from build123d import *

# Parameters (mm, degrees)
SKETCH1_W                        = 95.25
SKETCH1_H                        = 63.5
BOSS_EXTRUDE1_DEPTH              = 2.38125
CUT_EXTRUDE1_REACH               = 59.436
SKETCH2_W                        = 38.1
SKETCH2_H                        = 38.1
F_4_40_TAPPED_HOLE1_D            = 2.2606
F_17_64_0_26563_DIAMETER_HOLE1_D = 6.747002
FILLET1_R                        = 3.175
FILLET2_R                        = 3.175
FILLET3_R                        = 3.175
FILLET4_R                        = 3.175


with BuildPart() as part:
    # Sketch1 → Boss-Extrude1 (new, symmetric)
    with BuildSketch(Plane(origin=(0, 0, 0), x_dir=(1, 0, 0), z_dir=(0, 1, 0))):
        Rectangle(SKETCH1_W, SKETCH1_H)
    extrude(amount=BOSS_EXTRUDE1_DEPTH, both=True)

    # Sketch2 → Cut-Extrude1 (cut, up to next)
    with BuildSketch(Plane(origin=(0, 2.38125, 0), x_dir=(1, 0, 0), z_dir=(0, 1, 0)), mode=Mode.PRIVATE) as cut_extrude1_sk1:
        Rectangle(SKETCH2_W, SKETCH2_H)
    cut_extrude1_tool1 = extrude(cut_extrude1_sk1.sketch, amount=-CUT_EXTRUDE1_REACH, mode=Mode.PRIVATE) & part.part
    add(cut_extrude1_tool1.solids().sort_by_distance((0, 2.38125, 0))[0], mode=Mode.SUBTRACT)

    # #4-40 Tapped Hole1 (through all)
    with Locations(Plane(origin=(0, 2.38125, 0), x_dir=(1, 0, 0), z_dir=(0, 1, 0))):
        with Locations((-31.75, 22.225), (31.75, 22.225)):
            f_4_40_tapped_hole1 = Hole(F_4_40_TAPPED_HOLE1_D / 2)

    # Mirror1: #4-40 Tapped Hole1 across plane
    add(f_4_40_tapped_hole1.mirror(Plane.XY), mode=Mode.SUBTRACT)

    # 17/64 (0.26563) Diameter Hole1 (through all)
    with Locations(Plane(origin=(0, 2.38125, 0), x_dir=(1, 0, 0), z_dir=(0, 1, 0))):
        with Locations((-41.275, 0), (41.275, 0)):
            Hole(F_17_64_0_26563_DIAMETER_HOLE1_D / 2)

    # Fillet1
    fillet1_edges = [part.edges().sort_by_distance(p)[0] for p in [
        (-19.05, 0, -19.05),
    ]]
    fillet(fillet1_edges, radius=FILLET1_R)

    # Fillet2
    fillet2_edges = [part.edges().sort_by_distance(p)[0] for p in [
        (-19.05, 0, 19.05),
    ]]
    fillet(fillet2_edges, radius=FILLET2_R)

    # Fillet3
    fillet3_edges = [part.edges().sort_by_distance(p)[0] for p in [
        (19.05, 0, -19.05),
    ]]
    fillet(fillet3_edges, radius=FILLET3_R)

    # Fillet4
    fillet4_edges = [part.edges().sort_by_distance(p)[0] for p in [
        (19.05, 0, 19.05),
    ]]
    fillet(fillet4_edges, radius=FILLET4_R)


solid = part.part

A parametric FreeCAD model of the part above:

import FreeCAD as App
import Part
import Sketcher
Q = App.Units.Quantity


def edges_at(feature, points):
    """Names of the edges that pass closest to the given points."""
    edges = feature.Shape.Edges
    near = lambda p: min(range(len(edges)), key=lambda i: edges[i].distToShape(Part.Vertex(*p))[0])
    return sorted({f"Edge{near(p) + 1}" for p in points})

doc = App.newDocument("Part")
body = doc.addObject("PartDesign::Body", "Body")

sketch1 = body.newObject("Sketcher::SketchObject", "Sketch")
sketch1.AttachmentSupport = (doc.getObject("XZ_Plane"), [""])
sketch1.MapMode = "FlatFace"
sketch1.addGeometry(Part.LineSegment(App.Vector(-48, -32, 0), App.Vector(-48, 32, 0)), False)
sketch1.addGeometry(Part.LineSegment(App.Vector(-48, 32, 0), App.Vector(48, 32, 0)), False)
sketch1.addGeometry(Part.LineSegment(App.Vector(48, 32, 0), App.Vector(48, -32, 0)), False)
sketch1.addGeometry(Part.LineSegment(App.Vector(48, -32, 0), App.Vector(-48, -32, 0)), False)
sketch1.addConstraint(Sketcher.Constraint("Coincident", 0, 2, 1, 1))
sketch1.addConstraint(Sketcher.Constraint("Coincident", 1, 2, 2, 1))
sketch1.addConstraint(Sketcher.Constraint("Coincident", 2, 2, 3, 1))
sketch1.addConstraint(Sketcher.Constraint("Coincident", 3, 2, 0, 1))
sketch1.addConstraint(Sketcher.Constraint("Vertical", 0))
sketch1.addConstraint(Sketcher.Constraint("Horizontal", 1))
sketch1.addConstraint(Sketcher.Constraint("Vertical", 2))
sketch1.addConstraint(Sketcher.Constraint("Horizontal", 3))
sketch1.addConstraint(Sketcher.Constraint("Symmetric", 0, 2, 2, 2, -1, 1))
sketch1.addConstraint(Sketcher.Constraint("DistanceY", 0, 1, 0, 2, Q("2.5 in")))
sketch1.addConstraint(Sketcher.Constraint("DistanceX", 1, 1, 1, 2, Q("3.75 in")))
pad1 = body.newObject("PartDesign::Pad", "Pad")
pad1.Profile = sketch1
pad1.Length = Q("0.1875 in")
pad1.Midplane = True

sketch2 = body.newObject("Sketcher::SketchObject", "Sketch001")
sketch2.AttachmentSupport = (doc.getObject("XZ_Plane"), [""])
sketch2.MapMode = "FlatFace"
sketch2.AttachmentOffset = App.Placement(App.Vector(0, 0, -0.09375 * 25.4), App.Rotation())
sketch2.addGeometry(Part.LineSegment(App.Vector(-19, -19, 0), App.Vector(-19, 19, 0)), False)
sketch2.addGeometry(Part.LineSegment(App.Vector(-19, 19, 0), App.Vector(19, 19, 0)), False)
sketch2.addGeometry(Part.LineSegment(App.Vector(19, 19, 0), App.Vector(19, -19, 0)), False)
sketch2.addGeometry(Part.LineSegment(App.Vector(19, -19, 0), App.Vector(-19, -19, 0)), False)
sketch2.addConstraint(Sketcher.Constraint("Coincident", 0, 2, 1, 1))
sketch2.addConstraint(Sketcher.Constraint("Coincident", 1, 2, 2, 1))
sketch2.addConstraint(Sketcher.Constraint("Coincident", 2, 2, 3, 1))
sketch2.addConstraint(Sketcher.Constraint("Coincident", 3, 2, 0, 1))
sketch2.addConstraint(Sketcher.Constraint("Vertical", 0))
sketch2.addConstraint(Sketcher.Constraint("Horizontal", 1))
sketch2.addConstraint(Sketcher.Constraint("Vertical", 2))
sketch2.addConstraint(Sketcher.Constraint("Horizontal", 3))
sketch2.addConstraint(Sketcher.Constraint("Symmetric", 0, 2, 2, 2, -1, 1))
sketch2.addConstraint(Sketcher.Constraint("Equal", 3, 0))
sketch2.addConstraint(Sketcher.Constraint("DistanceX", 1, 1, 1, 2, Q("1.5 in")))
pocket1 = body.newObject("PartDesign::Pocket", "Pocket")
pocket1.Profile = sketch2
pocket1.Type = "UpToFirst"
pocket1.Reversed = True

sketch3 = body.newObject("Sketcher::SketchObject", "Sketch002")
sketch3.AttachmentSupport = (doc.getObject("XZ_Plane"), [""])
sketch3.MapMode = "FlatFace"
sketch3.AttachmentOffset = App.Placement(App.Vector(0, 0, -0.09375 * 25.4), App.Rotation())
sketch3.addGeometry(Part.Circle(App.Vector(-31.8, -22.2, 0), App.Vector(0, 0, 1), 1.1), False)
sketch3.addGeometry(Part.Circle(App.Vector(31.8, -22.2, 0), App.Vector(0, 0, 1), 1.1), False)
sketch3.addConstraint(Sketcher.Constraint("Equal", 0, 1))
sketch3.addConstraint(Sketcher.Constraint("Symmetric", 0, 3, 1, 3, -2))
sketch3.addConstraint(Sketcher.Constraint("Diameter", 0, Q("0.089 in")))
sketch3.addConstraint(Sketcher.Constraint("DistanceX", 0, 3, 1, 3, Q("2.5 in")))
sketch3.addConstraint(Sketcher.Constraint("DistanceY", 0, 3, -1, 1, Q("0.875 in")))
doc.recompute()
hole = body.newObject("PartDesign::Hole", "Hole")
hole.Profile = sketch3
hole.ThreadType = "None"
hole.Diameter = Q("0.089 in")
hole.DepthType = "ThroughAll"
hole.Reversed = True
doc.recompute()

mirrored = body.newObject("PartDesign::Mirrored", "Mirrored")
mirrored.Originals = [hole]
mirrored.MirrorPlane = (doc.getObject("XY_Plane"), [""])
body.Tip = mirrored

sketch4 = body.newObject("Sketcher::SketchObject", "Sketch003")
sketch4.AttachmentSupport = (doc.getObject("XZ_Plane"), [""])
sketch4.MapMode = "FlatFace"
sketch4.AttachmentOffset = App.Placement(App.Vector(0, 0, -0.09375 * 25.4), App.Rotation())
sketch4.addGeometry(Part.Circle(App.Vector(-41.3, 0, 0), App.Vector(0, 0, 1), 3.4), False)
sketch4.addGeometry(Part.Circle(App.Vector(41.3, 0, 0), App.Vector(0, 0, 1), 3.4), False)
sketch4.addConstraint(Sketcher.Constraint("Equal", 0, 1))
sketch4.addConstraint(Sketcher.Constraint("Symmetric", 0, 3, 1, 3, -1, 1))
sketch4.addConstraint(Sketcher.Constraint("PointOnObject", 0, 3, -1))
sketch4.addConstraint(Sketcher.Constraint("DistanceX", 0, 3, 1, 3, Q("3.25 in")))
sketch4.addConstraint(Sketcher.Constraint("Diameter", 0, Q("6.747002 mm")))
doc.recompute()
hole2 = body.newObject("PartDesign::Hole", "Hole001")
hole2.Profile = sketch4
hole2.ThreadType = "None"
hole2.Diameter = 6.747002
hole2.DepthType = "ThroughAll"
hole2.Reversed = True
doc.recompute()

fillet = body.newObject("PartDesign::Fillet", "Fillet")
fillet.Base = (hole2, edges_at(hole2, [(-19.05, 0, -19.05)]))
fillet.Radius = Q("0.125 in")
doc.recompute()

fillet2 = body.newObject("PartDesign::Fillet", "Fillet001")
fillet2.Base = (fillet, edges_at(fillet, [(-19.05, 0, 19.05)]))
fillet2.Radius = Q("0.125 in")
doc.recompute()

fillet3 = body.newObject("PartDesign::Fillet", "Fillet002")
fillet3.Base = (fillet2, edges_at(fillet2, [(19.05, 0, -19.05)]))
fillet3.Radius = Q("0.125 in")
doc.recompute()

fillet4 = body.newObject("PartDesign::Fillet", "Fillet003")
fillet4.Base = (fillet3, edges_at(fillet3, [(19.05, 0, 19.05)]))
fillet4.Radius = Q("0.125 in")

doc.recompute()
